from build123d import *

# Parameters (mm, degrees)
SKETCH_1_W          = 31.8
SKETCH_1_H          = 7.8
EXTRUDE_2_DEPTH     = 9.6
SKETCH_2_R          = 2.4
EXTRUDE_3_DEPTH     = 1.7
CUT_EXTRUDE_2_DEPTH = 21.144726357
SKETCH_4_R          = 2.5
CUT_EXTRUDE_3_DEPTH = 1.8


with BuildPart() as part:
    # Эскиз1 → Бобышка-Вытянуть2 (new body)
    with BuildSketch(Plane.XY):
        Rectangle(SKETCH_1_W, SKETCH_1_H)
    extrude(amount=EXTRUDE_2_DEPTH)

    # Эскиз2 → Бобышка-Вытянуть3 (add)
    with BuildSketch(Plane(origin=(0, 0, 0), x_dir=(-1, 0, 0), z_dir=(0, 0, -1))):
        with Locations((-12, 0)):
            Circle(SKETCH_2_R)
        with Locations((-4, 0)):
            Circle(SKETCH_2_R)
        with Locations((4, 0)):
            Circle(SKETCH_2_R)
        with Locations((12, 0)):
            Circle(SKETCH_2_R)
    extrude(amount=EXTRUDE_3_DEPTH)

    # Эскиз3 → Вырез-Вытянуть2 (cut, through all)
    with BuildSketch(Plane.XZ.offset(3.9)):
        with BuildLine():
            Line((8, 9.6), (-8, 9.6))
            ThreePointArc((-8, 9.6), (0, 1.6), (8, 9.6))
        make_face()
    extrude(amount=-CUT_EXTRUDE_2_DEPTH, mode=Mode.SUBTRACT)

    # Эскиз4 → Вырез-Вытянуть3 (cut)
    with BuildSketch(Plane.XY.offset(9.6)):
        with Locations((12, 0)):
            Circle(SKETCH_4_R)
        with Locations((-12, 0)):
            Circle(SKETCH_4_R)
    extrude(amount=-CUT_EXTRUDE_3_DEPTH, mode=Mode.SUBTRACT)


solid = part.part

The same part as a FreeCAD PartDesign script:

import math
import FreeCAD as App
import Part
import Sketcher


def add_polygon(sketch, points):
    """Adds a closed chain of lines whose ends are joined by coincident constraints."""
    first, n = sketch.GeometryCount, len(points)
    for a, b in zip(points, points[1:] + points[:1]):
        sketch.addGeometry(Part.LineSegment(App.Vector(*a, 0), App.Vector(*b, 0)), False)
    for i in range(n):
        sketch.addConstraint(Sketcher.Constraint("Coincident", first + i, 2, first + (i + 1) % n, 1))

doc = App.newDocument("Part")
body = doc.addObject("PartDesign::Body", "Body")

# Sketch on XY plane
sketch1 = doc.addObject("Sketcher::SketchObject", "Sketch")
body.addObject(sketch1)
sketch1.AttachmentSupport = (doc.XY_Plane, [""])
sketch1.MapMode = "FlatFace"
add_polygon(sketch1, [(-16, 4), (-16, -4), (16, -4), (16, 4)])  # lines 0-3
sketch1.addConstraint(Sketcher.Constraint("Vertical", 0))
sketch1.addConstraint(Sketcher.Constraint("Horizontal", 1))
sketch1.addConstraint(Sketcher.Constraint("Vertical", 2))
sketch1.addConstraint(Sketcher.Constraint("Horizontal", 3))
sketch1.addConstraint(Sketcher.Constraint("Symmetric", 0, 2, 2, 2, -1, 1))
sketch1.addConstraint(Sketcher.Constraint("DistanceX", 1, 1, 1, 2, 31.8))
sketch1.addConstraint(Sketcher.Constraint("DistanceY", 0, 2, 0, 1, 7.8))
pad1 = doc.addObject("PartDesign::Pad", "Pad")
body.addObject(pad1)
pad1.Profile = sketch1
pad1.Length = 9.6

# Sketch on XY plane
sketch2 = doc.addObject("Sketcher::SketchObject", "Sketch001")
body.addObject(sketch2)
sketch2.AttachmentSupport = (doc.XY_Plane, [""])
sketch2.MapMode = "FlatFace"
sketch2.addGeometry(Part.Circle(App.Vector(12, 0, 0), App.Vector(0, 0, 1), 2.4), False)
sketch2.addGeometry(Part.Circle(App.Vector(4, 0, 0), App.Vector(0, 0, 1), 2.4), False)
sketch2.addGeometry(Part.Circle(App.Vector(-4, 0, 0), App.Vector(0, 0, 1), 2.4), False)
sketch2.addGeometry(Part.Circle(App.Vector(-12, 0, 0), App.Vector(0, 0, 1), 2.4), False)
sketch2.addConstraint(Sketcher.Constraint("Equal", 0, 1))
sketch2.addConstraint(Sketcher.Constraint("Equal", 1, 2))
sketch2.addConstraint(Sketcher.Constraint("Equal", 2, 3))
sketch2.addConstraint(Sketcher.Constraint("Symmetric", 1, 3, 2, 3, -1, 1))
sketch2.addConstraint(Sketcher.Constraint("Symmetric", 0, 3, 3, 3, -1, 1))
sketch2.addConstraint(Sketcher.Constraint("PointOnObject", 0, 3, -1))
sketch2.addConstraint(Sketcher.Constraint("PointOnObject", 1, 3, -1))
sketch2.addConstraint(Sketcher.Constraint("Diameter", 0, 4.8))
sketch2.addConstraint(Sketcher.Constraint("DistanceX", -1, 1, 0, 3, 12.0))
sketch2.addConstraint(Sketcher.Constraint("DistanceX", -1, 1, 1, 3, 4.0))
pad2 = doc.addObject("PartDesign::Pad", "Pad001")
body.addObject(pad2)
pad2.Profile = sketch2
pad2.Length = 1.7
pad2.Reversed = True

# Sketch on XZ plane
sketch3 = doc.addObject("Sketcher::SketchObject", "Sketch002")
body.addObject(sketch3)
sketch3.AttachmentSupport = (doc.XZ_Plane, [""])
sketch3.MapMode = "FlatFace"
sketch3.AttachmentOffset = App.Placement(App.Vector(0, 0, 3.9), App.Rotation())
sketch3.addGeometry(Part.LineSegment(App.Vector(8, 10, 0), App.Vector(-8, 10, 0)), False)
sketch3.addGeometry(Part.ArcOfCircle(Part.Circle(App.Vector(0, 10, 0), App.Vector(0, 0, 1), 8), math.radians(180), math.radians(360)), False)
sketch3.addConstraint(Sketcher.Constraint("Coincident", 0, 1, 1, 2))
sketch3.addConstraint(Sketcher.Constraint("Coincident", 1, 1, 0, 2))
sketch3.addConstraint(Sketcher.Constraint("Horizontal", 0))
sketch3.addConstraint(Sketcher.Constraint("PointOnObject", 1, 3, -2))
sketch3.addConstraint(Sketcher.Constraint("Horizontal", 1, 3, 0, 1))
sketch3.addConstraint(Sketcher.Constraint("Radius", 1, 8.0))
sketch3.addConstraint(Sketcher.Constraint("DistanceY", -1, 1, 1, 3, 9.6))
pocket1 = doc.addObject("PartDesign::Pocket", "Pocket")
body.addObject(pocket1)
pocket1.Profile = sketch3
pocket1.Type = "ThroughAll"

# Sketch on XY plane
sketch4 = doc.addObject("Sketcher::SketchObject", "Sketch003")
body.addObject(sketch4)
sketch4.AttachmentSupport = (doc.XY_Plane, [""])
sketch4.MapMode = "FlatFace"
sketch4.AttachmentOffset = App.Placement(App.Vector(0, 0, 9.6), App.Rotation())
sketch4.addGeometry(Part.Circle(App.Vector(12, 0, 0), App.Vector(0, 0, 1), 2.5), False)
sketch4.addGeometry(Part.Circle(App.Vector(-12, 0, 0), App.Vector(0, 0, 1), 2.5), False)
sketch4.addConstraint(Sketcher.Constraint("Equal", 0, 1))
sketch4.addConstraint(Sketcher.Constraint("Symmetric", 0, 3, 1, 3, -1, 1))
sketch4.addConstraint(Sketcher.Constraint("PointOnObject", 0, 3, -1))
sketch4.addConstraint(Sketcher.Constraint("Diameter", 0, 5.0))
sketch4.addConstraint(Sketcher.Constraint("DistanceX", -1, 1, 0, 3, 12.0))
pocket2 = doc.addObject("PartDesign::Pocket", "Pocket001")
body.addObject(pocket2)
pocket2.Profile = sketch4
pocket2.Length = 1.8

doc.recompute()
